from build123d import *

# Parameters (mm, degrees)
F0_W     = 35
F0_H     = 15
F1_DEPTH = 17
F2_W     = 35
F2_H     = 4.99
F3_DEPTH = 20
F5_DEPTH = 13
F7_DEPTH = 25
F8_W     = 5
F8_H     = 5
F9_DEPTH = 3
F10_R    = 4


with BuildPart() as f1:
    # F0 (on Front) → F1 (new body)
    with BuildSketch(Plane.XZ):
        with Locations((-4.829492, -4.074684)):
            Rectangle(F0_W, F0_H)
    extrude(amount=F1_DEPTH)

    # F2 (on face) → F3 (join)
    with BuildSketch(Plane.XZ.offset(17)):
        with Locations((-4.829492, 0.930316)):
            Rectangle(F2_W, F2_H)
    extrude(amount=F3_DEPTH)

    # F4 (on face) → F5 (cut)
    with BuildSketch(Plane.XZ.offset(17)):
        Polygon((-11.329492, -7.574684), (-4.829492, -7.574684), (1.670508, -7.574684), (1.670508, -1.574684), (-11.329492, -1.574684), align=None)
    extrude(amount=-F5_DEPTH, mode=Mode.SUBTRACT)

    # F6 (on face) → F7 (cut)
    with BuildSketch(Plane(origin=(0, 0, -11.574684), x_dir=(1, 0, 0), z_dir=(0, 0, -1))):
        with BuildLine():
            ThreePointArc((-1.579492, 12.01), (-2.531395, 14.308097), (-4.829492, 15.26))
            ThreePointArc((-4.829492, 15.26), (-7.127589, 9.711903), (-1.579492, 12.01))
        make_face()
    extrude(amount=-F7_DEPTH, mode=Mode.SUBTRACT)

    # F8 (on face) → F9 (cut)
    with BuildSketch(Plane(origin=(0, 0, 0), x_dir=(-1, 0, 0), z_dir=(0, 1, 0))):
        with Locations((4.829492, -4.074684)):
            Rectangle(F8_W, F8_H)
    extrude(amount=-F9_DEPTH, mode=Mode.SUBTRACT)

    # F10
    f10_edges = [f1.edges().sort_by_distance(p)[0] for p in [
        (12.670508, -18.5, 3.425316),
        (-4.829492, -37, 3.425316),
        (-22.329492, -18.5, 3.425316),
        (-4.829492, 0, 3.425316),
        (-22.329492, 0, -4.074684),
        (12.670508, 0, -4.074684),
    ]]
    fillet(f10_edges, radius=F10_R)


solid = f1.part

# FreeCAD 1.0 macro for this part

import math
import FreeCAD as App
import Part
import Sketcher
from FreeCAD import Vector
Q = App.Units.Quantity


def edges_at(feature, points):
    """Names of the edges that pass closest to the given points."""
    edges = feature.Shape.Edges
    near = lambda p: min(range(len(edges)), key=lambda i: edges[i].distToShape(Part.Vertex(*p))[0])
    return sorted({f"Edge{near(p) + 1}" for p in points})


def add_polygon(sketch, points):
    """Adds a closed chain of lines whose ends are joined by coincident constraints."""
    first, n = sketch.GeometryCount, len(points)
    for a, b in zip(points, points[1:] + points[:1]):
        sketch.addGeometry(Part.LineSegment(App.Vector(*a, 0), App.Vector(*b, 0)), False)
    for i in range(n):
        sketch.addConstraint(Sketcher.Constraint("Coincident", first + i, 2, first + (i + 1) % n, 1))

doc = App.newDocument("Part")
body = doc.addObject("PartDesign::Body", "Body")

# Sketch on XZ plane
sketch1 = body.newObject("Sketcher::SketchObject", "Sketch")
sketch1.AttachmentSupport = (doc.getObject("XZ_Plane"), [""])
sketch1.MapMode = "FlatFace"
add_polygon(sketch1, [(-22, 3), (-22, -12), (13, -12), (13, 3)])  # lines 0-3
sketch1.addConstraint(Sketcher.Constraint("Vertical", 0))
sketch1.addConstraint(Sketcher.Constraint("Horizontal", 1))
sketch1.addConstraint(Sketcher.Constraint("Vertical", 2))
sketch1.addConstraint(Sketcher.Constraint("Horizontal", 3))
sketch1.addConstraint(Sketcher.Constraint("DistanceX", 1, 1, 1, 2, Q("35 mm")))
sketch1.addConstraint(Sketcher.Constraint("DistanceY", 0, 2, 0, 1, Q("15 mm")))
sketch1.addConstraint(Sketcher.Constraint("DistanceX", 0, 2, -1, 1, Q("22.329492 mm")))
sketch1.addConstraint(Sketcher.Constraint("DistanceY", 0, 2, -1, 1, Q("11.574684 mm")))
pad1 = body.newObject("PartDesign::Pad", "Pad")
pad1.Profile = sketch1
pad1.Length = 17

# Sketch on XZ plane
sketch2 = body.newObject("Sketcher::SketchObject", "Sketch001")
sketch2.AttachmentSupport = (doc.getObject("XZ_Plane"), [""])
sketch2.MapMode = "FlatFace"
sketch2.AttachmentOffset = App.Placement(Vector(0, 0, 17), App.Rotation())
add_polygon(sketch2, [(-22.3, 3.4), (-22.3, -1.6), (12.7, -1.6), (12.7, 3.4)])  # lines 0-3
sketch2.addConstraint(Sketcher.Constraint("Vertical", 0))
sketch2.addConstraint(Sketcher.Constraint("Horizontal", 1))
sketch2.addConstraint(Sketcher.Constraint("Vertical", 2))
sketch2.addConstraint(Sketcher.Constraint("Horizontal", 3))
sketch2.addConstraint(Sketcher.Constraint("DistanceX", 1, 1, 1, 2, Q("35 mm")))
sketch2.addConstraint(Sketcher.Constraint("DistanceY", 0, 2, 0, 1, Q("4.99 mm")))
sketch2.addConstraint(Sketcher.Constraint("DistanceX", 0, 2, -1, 1, Q("22.329492 mm")))
sketch2.addConstraint(Sketcher.Constraint("DistanceY", 0, 2, -1, 1, Q("1.564684 mm")))
pad2 = body.newObject("PartDesign::Pad", "Pad001")
pad2.Profile = sketch2
pad2.Length = 20

# Sketch on XZ plane
sketch3 = body.newObject("Sketcher::SketchObject", "Sketch002")
sketch3.AttachmentSupport = (doc.getObject("XZ_Plane"), [""])
sketch3.MapMode = "FlatFace"
sketch3.AttachmentOffset = App.Placement(Vector(0, 0, 17), App.Rotation())
add_polygon(sketch3, [(-11, -8), (2, -8), (2, -2), (-11, -2)])  # lines 0-3
sketch3.addConstraint(Sketcher.Constraint("Horizontal", 0))
sketch3.addConstraint(Sketcher.Constraint("Vertical", 1))
sketch3.addConstraint(Sketcher.Constraint("Horizontal", 2))
sketch3.addConstraint(Sketcher.Constraint("Vertical", 3))
sketch3.addConstraint(Sketcher.Constraint("DistanceX", 0, 1, 0, 2, Q("13 mm")))
sketch3.addConstraint(Sketcher.Constraint("DistanceY", 1, 1, 1, 2, Q("6 mm")))
sketch3.addConstraint(Sketcher.Constraint("DistanceX", -1, 1, 0, 2, Q("1.670508 mm")))
sketch3.addConstraint(Sketcher.Constraint("DistanceY", 0, 2, -1, 1, Q("7.574684 mm")))
pocket1 = body.newObject("PartDesign::Pocket", "Pocket")
pocket1.Profile = sketch3
pocket1.Length = 13

# Sketch on XY plane
sketch4 = body.newObject("Sketcher::SketchObject", "Sketch003")
sketch4.AttachmentSupport = (doc.getObject("XY_Plane"), [""])
sketch4.MapMode = "FlatFace"
sketch4.AttachmentOffset = App.Placement(Vector(0, 0, -11.574684), App.Rotation())
sketch4.addGeometry(Part.ArcOfCircle(Part.Circle(Vector(-4.8, -12, 0), Vector(0, 0, 1), 3.3), math.radians(-90), math.radians(0)), False)
sketch4.addGeometry(Part.ArcOfCircle(Part.Circle(Vector(-4.8, -12, 0), Vector(0, 0, 1), 3.2), math.radians(0), math.radians(270)), False)
sketch4.addConstraint(Sketcher.Constraint("Tangent", 0, 1, 1, 2))
sketch4.addConstraint(Sketcher.Constraint("Coincident", 1, 1, 0, 2))
sketch4.addConstraint(Sketcher.Constraint("Horizontal", 0, 3, 1, 1))
sketch4.addConstraint(Sketcher.Constraint("Vertical", 1, 3, 0, 1))
sketch4.addConstraint(Sketcher.Constraint("Radius", 0, Q("3.25 mm")))
sketch4.addConstraint(Sketcher.Constraint("DistanceY", 0, 3, -1, 1, Q("12.01 mm")))
sketch4.addConstraint(Sketcher.Constraint("DistanceX", 1, 3, -1, 1, Q("4.829492 mm")))
pocket2 = body.newObject("PartDesign::Pocket", "Pocket001")
pocket2.Profile = sketch4
pocket2.Length = 25
pocket2.Reversed = True

# Sketch on XZ plane
sketch5 = body.newObject("Sketcher::SketchObject", "Sketch004")
sketch5.AttachmentSupport = (doc.getObject("XZ_Plane"), [""])
sketch5.MapMode = "FlatFace"
add_polygon(sketch5, [(-2, -2), (-2, -7), (-7, -7), (-7, -2)])  # lines 0-3
sketch5.addConstraint(Sketcher.Constraint("Vertical", 0))
sketch5.addConstraint(Sketcher.Constraint("Horizontal", 1))
sketch5.addConstraint(Sketcher.Constraint("Vertical", 2))
sketch5.addConstraint(Sketcher.Constraint("Horizontal", 3))
sketch5.addConstraint(Sketcher.Constraint("Equal", 3, 0))
sketch5.addConstraint(Sketcher.Constraint("DistanceX", 1, 2, 1, 1, Q("5 mm")))
sketch5.addConstraint(Sketcher.Constraint("DistanceX", 0, 2, -1, 1, Q("2.329492 mm")))
sketch5.addConstraint(Sketcher.Constraint("DistanceY", 0, 2, -1, 1, Q("6.574684 mm")))
pocket3 = body.newObject("PartDesign::Pocket", "Pocket002")
pocket3.Profile = sketch5
pocket3.Length = 3
pocket3.Reversed = True
doc.recompute()

fillet = body.newObject("PartDesign::Fillet", "Fillet")
fillet.Base = (pocket3, edges_at(pocket3, [
    (12.671, -18.5, 3.425),
    (-4.829, -37, 3.425),
    (-22.329, -18.5, 3.425),
    (-4.829, 0, 3.425),
    (-22.329, 0, -4.075),
    (12.671, 0, -4.075),
]))
fillet.Radius = 4

doc.recompute()
